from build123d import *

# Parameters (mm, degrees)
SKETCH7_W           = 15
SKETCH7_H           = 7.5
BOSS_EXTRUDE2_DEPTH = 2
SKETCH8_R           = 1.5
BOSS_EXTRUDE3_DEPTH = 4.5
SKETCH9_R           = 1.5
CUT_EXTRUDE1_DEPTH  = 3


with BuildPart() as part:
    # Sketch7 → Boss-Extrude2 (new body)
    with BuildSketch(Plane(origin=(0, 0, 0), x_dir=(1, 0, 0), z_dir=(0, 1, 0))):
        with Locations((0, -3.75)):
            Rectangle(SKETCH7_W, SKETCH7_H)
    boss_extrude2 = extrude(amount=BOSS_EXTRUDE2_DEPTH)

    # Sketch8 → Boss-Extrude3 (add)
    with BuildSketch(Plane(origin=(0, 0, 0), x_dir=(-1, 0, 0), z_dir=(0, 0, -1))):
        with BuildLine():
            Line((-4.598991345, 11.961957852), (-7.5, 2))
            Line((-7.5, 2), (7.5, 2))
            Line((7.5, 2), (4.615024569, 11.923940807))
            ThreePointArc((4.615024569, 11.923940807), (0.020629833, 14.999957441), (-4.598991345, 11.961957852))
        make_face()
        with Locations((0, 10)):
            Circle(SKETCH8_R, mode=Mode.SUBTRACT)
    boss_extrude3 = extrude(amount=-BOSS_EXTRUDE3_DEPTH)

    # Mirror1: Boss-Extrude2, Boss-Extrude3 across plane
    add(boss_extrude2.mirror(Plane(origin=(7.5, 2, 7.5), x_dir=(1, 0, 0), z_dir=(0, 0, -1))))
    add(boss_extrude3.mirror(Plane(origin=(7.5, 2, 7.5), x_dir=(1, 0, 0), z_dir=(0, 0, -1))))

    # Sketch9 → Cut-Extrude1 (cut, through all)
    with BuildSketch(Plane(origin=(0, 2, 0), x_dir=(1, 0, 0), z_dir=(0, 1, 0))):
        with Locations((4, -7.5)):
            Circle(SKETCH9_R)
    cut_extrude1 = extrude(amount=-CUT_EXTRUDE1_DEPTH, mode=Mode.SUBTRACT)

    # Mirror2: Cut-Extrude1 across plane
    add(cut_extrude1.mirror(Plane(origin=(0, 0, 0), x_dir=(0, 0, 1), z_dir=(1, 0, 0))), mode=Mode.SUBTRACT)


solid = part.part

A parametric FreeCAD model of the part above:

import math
import FreeCAD as App
import Part
import Sketcher

V = App.Vector
Q = App.Units.Quantity


def add_polygon(sketch, points):
    """Adds a closed chain of lines whose ends are joined by coincident constraints."""
    first, n = sketch.GeometryCount, len(points)
    for a, b in zip(points, points[1:] + points[:1]):
        sketch.addGeometry(Part.LineSegment(App.Vector(*a, 0), App.Vector(*b, 0)), False)
    for i in range(n):
        sketch.addConstraint(Sketcher.Constraint("Coincident", first + i, 2, first + (i + 1) % n, 1))

doc = App.newDocument("Part")
body = doc.addObject("PartDesign::Body", "Body")

# Sketch on XZ plane
sketch1 = body.newObject("Sketcher::SketchObject", "Sketch")
sketch1.AttachmentSupport = (doc.getObject("XZ_Plane"), [""])
sketch1.MapMode = "FlatFace"
add_polygon(sketch1, [(-7.5, 0), (-7.5, 7.5), (7.5, 7.5), (7.5, 0)])  # lines 0-3
sketch1.addConstraint([
    Sketcher.Constraint("Vertical", 0),
    Sketcher.Constraint("Horizontal", 1),
    Sketcher.Constraint("Vertical", 2),
    Sketcher.Constraint("Horizontal", 3),
    Sketcher.Constraint("Symmetric", 2, 2, 3, 2, -1, 1),
    Sketcher.Constraint("DistanceX", 1, 1, 1, 2, Q("15 mm")),
    Sketcher.Constraint("DistanceY", 0, 1, 0, 2, Q("7.5 mm")),
])
pad1 = body.newObject("PartDesign::Pad", "Pad")
pad1.Profile = sketch1
pad1.Length = 2
pad1.Reversed = True

# Sketch on XY plane
sketch2 = body.newObject("Sketcher::SketchObject", "Sketch001")
sketch2.AttachmentSupport = (doc.getObject("XY_Plane"), [""])
sketch2.MapMode = "FlatFace"
sketch2.addGeometry([
    Part.LineSegment(V(4.598991, 11.961958, 0), V(7.5, 2, 0)),  # 0
    Part.LineSegment(V(7.5, 2, 0), V(-7.5, 2, 0)),  # 1
    Part.LineSegment(V(-7.5, 2, 0), V(-4.615025, 11.923941, 0)),  # 2
    Part.ArcOfCircle(Part.Circle(V(0, 10, 0), V(0, 0, 1), 5), math.radians(23.103392), math.radians(157.36941)),  # 3
    Part.Circle(V(0, 10, 0), V(0, 0, 1), 1.5),  # 4
], False)
sketch2.addConstraint([
    Sketcher.Constraint("Coincident", 0, 2, 1, 1),
    Sketcher.Constraint("Coincident", 1, 2, 2, 1),
    Sketcher.Constraint("Coincident", 2, 2, 3, 2),
    Sketcher.Constraint("Coincident", 3, 1, 0, 1),
    Sketcher.Constraint("Horizontal", 1),
    Sketcher.Constraint("Coincident", 4, 3, 3, 3),
    Sketcher.Constraint("PointOnObject", 3, 3, -2),
    Sketcher.Constraint("Diameter", 4, Q("3 mm")),
    Sketcher.Constraint("Radius", 3, Q("5 mm")),
    Sketcher.Constraint("DistanceX", 1, 2, 1, 1, Q("15 mm")),
    Sketcher.Constraint("DistanceY", -1, 1, 3, 3, Q("10 mm")),
    Sketcher.Constraint("DistanceY", -1, 1, 0, 2, Q("2 mm")),
    Sketcher.Constraint("DistanceX", -1, 1, 0, 2, Q("7.5 mm")),
    Sketcher.Constraint("Distance", 2, Q("10.33478 mm")),
    Sketcher.Constraint("DistanceX", -1, 1, 3, 1, Q("4.598991 mm")),
])
pad2 = body.newObject("PartDesign::Pad", "Pad001")
pad2.Profile = sketch2
pad2.Length = 4.5
doc.recompute()

datumplane = body.newObject("PartDesign::Plane", "DatumPlane")
datumplane.AttachmentSupport = (doc.getObject("XY_Plane"), [""])
datumplane.MapMode = "FlatFace"
datumplane.AttachmentOffset = App.Placement(V(0, 0, 7.5), App.Rotation())
mirrored = body.newObject("PartDesign::Mirrored", "Mirrored")
mirrored.Originals = [pad1, pad2]
mirrored.MirrorPlane = (datumplane, [""])
body.Tip = mirrored

# Sketch on XZ plane
sketch3 = body.newObject("Sketcher::SketchObject", "Sketch002")
sketch3.AttachmentSupport = (doc.getObject("XZ_Plane"), [""])
sketch3.MapMode = "FlatFace"
sketch3.AttachmentOffset = App.Placement(V(0, 0, -2), App.Rotation())
sketch3.addGeometry(Part.Circle(V(4, 7.5, 0), V(0, 0, 1), 1.5), False)
sketch3.addConstraint([
    Sketcher.Constraint("Diameter", 0, Q("3 mm")),
    Sketcher.Constraint("DistanceX", -1, 1, 0, 3, Q("4 mm")),
    Sketcher.Constraint("DistanceY", -1, 1, 0, 3, Q("7.5 mm")),
])
pocket1 = body.newObject("PartDesign::Pocket", "Pocket")
pocket1.Profile = sketch3
pocket1.Type = "ThroughAll"
pocket1.Reversed = True
doc.recompute()

mirrored2 = body.newObject("PartDesign::Mirrored", "Mirrored001")
mirrored2.Originals = [pocket1]
mirrored2.MirrorPlane = (doc.getObject("YZ_Plane"), [""])
body.Tip = mirrored2

doc.recompute()
